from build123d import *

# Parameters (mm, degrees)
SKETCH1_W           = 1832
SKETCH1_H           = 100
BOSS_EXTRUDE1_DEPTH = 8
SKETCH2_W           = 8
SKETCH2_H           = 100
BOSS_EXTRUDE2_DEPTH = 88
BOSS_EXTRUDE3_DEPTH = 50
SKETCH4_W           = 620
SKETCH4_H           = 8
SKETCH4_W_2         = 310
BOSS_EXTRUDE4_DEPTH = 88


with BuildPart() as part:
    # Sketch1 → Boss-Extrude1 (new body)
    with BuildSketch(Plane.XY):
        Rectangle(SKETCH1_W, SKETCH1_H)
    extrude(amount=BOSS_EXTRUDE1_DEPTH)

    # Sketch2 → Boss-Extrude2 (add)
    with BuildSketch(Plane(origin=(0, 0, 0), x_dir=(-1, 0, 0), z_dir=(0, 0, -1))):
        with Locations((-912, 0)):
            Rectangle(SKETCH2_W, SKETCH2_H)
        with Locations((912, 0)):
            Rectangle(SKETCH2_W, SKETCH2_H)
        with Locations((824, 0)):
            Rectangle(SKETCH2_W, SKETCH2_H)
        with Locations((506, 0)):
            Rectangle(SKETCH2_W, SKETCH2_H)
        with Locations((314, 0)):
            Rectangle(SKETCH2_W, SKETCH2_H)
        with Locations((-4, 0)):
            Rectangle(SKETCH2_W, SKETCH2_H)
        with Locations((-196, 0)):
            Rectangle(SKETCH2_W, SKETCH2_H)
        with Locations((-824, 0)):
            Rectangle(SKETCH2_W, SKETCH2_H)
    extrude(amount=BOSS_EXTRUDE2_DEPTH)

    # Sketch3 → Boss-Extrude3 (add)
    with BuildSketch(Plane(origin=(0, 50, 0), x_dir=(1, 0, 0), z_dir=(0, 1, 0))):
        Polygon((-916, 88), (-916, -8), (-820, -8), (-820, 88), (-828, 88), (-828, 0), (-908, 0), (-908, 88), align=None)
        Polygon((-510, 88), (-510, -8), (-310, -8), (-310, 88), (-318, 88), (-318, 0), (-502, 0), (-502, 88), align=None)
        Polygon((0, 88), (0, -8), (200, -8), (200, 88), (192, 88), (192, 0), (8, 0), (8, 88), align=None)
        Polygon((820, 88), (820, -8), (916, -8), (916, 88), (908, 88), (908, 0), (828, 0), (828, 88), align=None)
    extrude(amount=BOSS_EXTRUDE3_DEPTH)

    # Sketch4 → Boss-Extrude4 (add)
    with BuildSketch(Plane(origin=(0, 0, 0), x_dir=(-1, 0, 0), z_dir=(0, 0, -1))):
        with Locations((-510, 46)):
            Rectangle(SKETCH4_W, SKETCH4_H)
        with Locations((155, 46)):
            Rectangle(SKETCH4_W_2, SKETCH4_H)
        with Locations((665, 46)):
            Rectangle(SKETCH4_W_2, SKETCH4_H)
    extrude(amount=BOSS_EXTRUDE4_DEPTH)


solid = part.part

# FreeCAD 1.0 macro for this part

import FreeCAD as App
import Part
import Sketcher
Q = App.Units.Quantity

doc = App.newDocument("Part")
body = doc.addObject("PartDesign::Body", "Body")

sketch1 = body.newObject("Sketcher::SketchObject", "Sketch")
sketch1.AttachmentSupport = (doc.getObject("XY_Plane"), [""])
sketch1.MapMode = "FlatFace"
sketch1.addGeometry([
    Part.LineSegment(App.Vector(-916, 50, 0), App.Vector(-916, -50, 0)),
    Part.LineSegment(App.Vector(-916, -50, 0), App.Vector(916, -50, 0)),
    Part.LineSegment(App.Vector(916, -50, 0), App.Vector(916, 50, 0)),
    Part.LineSegment(App.Vector(916, 50, 0), App.Vector(-916, 50, 0)),
], False)
sketch1.addConstraint([
    Sketcher.Constraint("Coincident", 0, 2, 1, 1),
    Sketcher.Constraint("Coincident", 1, 2, 2, 1),
    Sketcher.Constraint("Coincident", 2, 2, 3, 1),
    Sketcher.Constraint("Coincident", 3, 2, 0, 1),
    Sketcher.Constraint("Vertical", 0),
    Sketcher.Constraint("Horizontal", 1),
    Sketcher.Constraint("Vertical", 2),
    Sketcher.Constraint("Horizontal", 3),
    Sketcher.Constraint("Symmetric", 0, 2, 2, 2, -1, 1),
    Sketcher.Constraint("DistanceX", 1, 1, 1, 2, Q("1832 mm")),
    Sketcher.Constraint("DistanceY", 0, 2, 0, 1, Q("100 mm")),
])
pad1 = body.newObject("PartDesign::Pad", "Pad")
pad1.Profile = sketch1
pad1.Length = 8

sketch2 = body.newObject("Sketcher::SketchObject", "Sketch001")
sketch2.AttachmentSupport = (doc.getObject("XY_Plane"), [""])
sketch2.MapMode = "FlatFace"
sketch2.addGeometry([
    Part.LineSegment(App.Vector(916, 50, 0), App.Vector(916, -50, 0)),
    Part.LineSegment(App.Vector(916, -50, 0), App.Vector(908, -50, 0)),
    Part.LineSegment(App.Vector(908, -50, 0), App.Vector(908, 50, 0)),
    Part.LineSegment(App.Vector(908, 50, 0), App.Vector(916, 50, 0)),
    Part.LineSegment(App.Vector(-908, 50, 0), App.Vector(-908, -50, 0)),
    Part.LineSegment(App.Vector(-908, -50, 0), App.Vector(-916, -50, 0)),
    Part.LineSegment(App.Vector(-916, -50, 0), App.Vector(-916, 50, 0)),
    Part.LineSegment(App.Vector(-916, 50, 0), App.Vector(-908, 50, 0)),
    Part.LineSegment(App.Vector(-820, 50, 0), App.Vector(-820, -50, 0)),
    Part.LineSegment(App.Vector(-820, -50, 0), App.Vector(-828, -50, 0)),
    Part.LineSegment(App.Vector(-828, -50, 0), App.Vector(-828, 50, 0)),
    Part.LineSegment(App.Vector(-828, 50, 0), App.Vector(-820, 50, 0)),
    Part.LineSegment(App.Vector(-502, 50, 0), App.Vector(-502, -50, 0)),
    Part.LineSegment(App.Vector(-502, -50, 0), App.Vector(-510, -50, 0)),
    Part.LineSegment(App.Vector(-510, -50, 0), App.Vector(-510, 50, 0)),
    Part.LineSegment(App.Vector(-510, 50, 0), App.Vector(-502, 50, 0)),
    Part.LineSegment(App.Vector(-310, 50, 0), App.Vector(-310, -50, 0)),
    Part.LineSegment(App.Vector(-310, -50, 0), App.Vector(-318, -50, 0)),
    Part.LineSegment(App.Vector(-318, -50, 0), App.Vector(-318, 50, 0)),
    Part.LineSegment(App.Vector(-318, 50, 0), App.Vector(-310, 50, 0)),
    Part.LineSegment(App.Vector(8, 50, 0), App.Vector(8, -50, 0)),
    Part.LineSegment(App.Vector(8, -50, 0), App.Vector(0, -50, 0)),
    Part.LineSegment(App.Vector(0, -50, 0), App.Vector(0, 50, 0)),
    Part.LineSegment(App.Vector(0, 50, 0), App.Vector(8, 50, 0)),
    Part.LineSegment(App.Vector(200, 50, 0), App.Vector(200, -50, 0)),
    Part.LineSegment(App.Vector(200, -50, 0), App.Vector(192, -50, 0)),
    Part.LineSegment(App.Vector(192, -50, 0), App.Vector(192, 50, 0)),
    Part.LineSegment(App.Vector(192, 50, 0), App.Vector(200, 50, 0)),
    Part.LineSegment(App.Vector(828, 50, 0), App.Vector(828, -50, 0)),
    Part.LineSegment(App.Vector(828, -50, 0), App.Vector(820, -50, 0)),
    Part.LineSegment(App.Vector(820, -50, 0), App.Vector(820, 50, 0)),
    Part.LineSegment(App.Vector(820, 50, 0), App.Vector(828, 50, 0)),
], False)
sketch2.addConstraint([
    Sketcher.Constraint("Coincident", 0, 2, 1, 1),
    Sketcher.Constraint("Coincident", 1, 2, 2, 1),
    Sketcher.Constraint("Coincident", 2, 2, 3, 1),
    Sketcher.Constraint("Coincident", 3, 2, 0, 1),
    Sketcher.Constraint("Coincident", 4, 2, 5, 1),
    Sketcher.Constraint("Coincident", 5, 2, 6, 1),
    Sketcher.Constraint("Coincident", 6, 2, 7, 1),
    Sketcher.Constraint("Coincident", 7, 2, 4, 1),
    Sketcher.Constraint("Coincident", 8, 2, 9, 1),
    Sketcher.Constraint("Coincident", 9, 2, 10, 1),
    Sketcher.Constraint("Coincident", 10, 2, 11, 1),
    Sketcher.Constraint("Coincident", 11, 2, 8, 1),
    Sketcher.Constraint("Coincident", 12, 2, 13, 1),
    Sketcher.Constraint("Coincident", 13, 2, 14, 1),
    Sketcher.Constraint("Coincident", 14, 2, 15, 1),
    Sketcher.Constraint("Coincident", 15, 2, 12, 1),
    Sketcher.Constraint("Coincident", 16, 2, 17, 1),
    Sketcher.Constraint("Coincident", 17, 2, 18, 1),
    Sketcher.Constraint("Coincident", 18, 2, 19, 1),
    Sketcher.Constraint("Coincident", 19, 2, 16, 1),
    Sketcher.Constraint("Coincident", 20, 2, 21, 1),
    Sketcher.Constraint("Coincident", 21, 2, 22, 1),
    Sketcher.Constraint("Coincident", 22, 2, 23, 1),
    Sketcher.Constraint("Coincident", 23, 2, 20, 1),
    Sketcher.Constraint("Coincident", 24, 2, 25, 1),
    Sketcher.Constraint("Coincident", 25, 2, 26, 1),
    Sketcher.Constraint("Coincident", 26, 2, 27, 1),
    Sketcher.Constraint("Coincident", 27, 2, 24, 1),
    Sketcher.Constraint("Coincident", 28, 2, 29, 1),
    Sketcher.Constraint("Coincident", 29, 2, 30, 1),
    Sketcher.Constraint("Coincident", 30, 2, 31, 1),
    Sketcher.Constraint("Coincident", 31, 2, 28, 1),
    Sketcher.Constraint("Vertical", 0),
    Sketcher.Constraint("Horizontal", 1),
    Sketcher.Constraint("Vertical", 2),
    Sketcher.Constraint("Horizontal", 3),
    Sketcher.Constraint("Vertical", 4),
    Sketcher.Constraint("Horizontal", 5),
    Sketcher.Constraint("Vertical", 6),
    Sketcher.Constraint("Horizontal", 7),
    Sketcher.Constraint("Vertical", 8),
    Sketcher.Constraint("Horizontal", 9),
    Sketcher.Constraint("Vertical", 10),
    Sketcher.Constraint("Horizontal", 11),
    Sketcher.Constraint("Vertical", 12),
    Sketcher.Constraint("Horizontal", 13),
    Sketcher.Constraint("Vertical", 14),
    Sketcher.Constraint("Horizontal", 15),
    Sketcher.Constraint("Vertical", 16),
    Sketcher.Constraint("Horizontal", 17),
    Sketcher.Constraint("Vertical", 18),
    Sketcher.Constraint("Horizontal", 19),
    Sketcher.Constraint("Vertical", 20),
    Sketcher.Constraint("Horizontal", 21),
    Sketcher.Constraint("Vertical", 22),
    Sketcher.Constraint("Horizontal", 23),
    Sketcher.Constraint("Vertical", 24),
    Sketcher.Constraint("Horizontal", 25),
    Sketcher.Constraint("Vertical", 26),
    Sketcher.Constraint("Horizontal", 27),
    Sketcher.Constraint("Vertical", 28),
    Sketcher.Constraint("Horizontal", 29),
    Sketcher.Constraint("Vertical", 30),
    Sketcher.Constraint("Horizontal", 31),
    Sketcher.Constraint("Symmetric", 2, 2, 4, 2, -1, 1),
    Sketcher.Constraint("Symmetric", 0, 2, 6, 2, -1, 1),
    Sketcher.Constraint("Symmetric", 21, 2, 22, 2, -1, 1),
    Sketcher.Constraint("Symmetric", 10, 2, 28, 2, -1, 1),
    Sketcher.Constraint("Symmetric", 8, 2, 30, 2, -1, 1),
    Sketcher.Constraint("Horizontal", 1, 2, 4, 2),
    Sketcher.Constraint("Horizontal", 5, 2, 8, 2),
    Sketcher.Constraint("Horizontal", 7, 2, 10, 2),
    Sketcher.Constraint("Horizontal", 9, 2, 12, 2),
    Sketcher.Constraint("Horizontal", 11, 2, 14, 2),
    Sketcher.Constraint("Horizontal", 13, 2, 16, 2),
    Sketcher.Constraint("Horizontal", 15, 2, 18, 2),
    Sketcher.Constraint("Horizontal", 17, 2, 20, 2),
    Sketcher.Constraint("Horizontal", 21, 2, 24, 2),
    Sketcher.Constraint("Horizontal", 23, 2, 26, 2),
    Sketcher.Constraint("Equal", 7, 9),
    Sketcher.Constraint("Equal", 11, 13),
    Sketcher.Constraint("Equal", 15, 17),
    Sketcher.Constraint("Equal", 19, 21),
    Sketcher.Constraint("Equal", 23, 25),
    Sketcher.Constraint("DistanceX", 1, 2, 1, 1, Q("8 mm")),
    Sketcher.Constraint("DistanceY", 0, 2, 0, 1, Q("100 mm")),
    Sketcher.Constraint("DistanceX", -1, 1, 0, 2, Q("916 mm")),
    Sketcher.Constraint("DistanceX", 8, 2, -1, 1, Q("820 mm")),
    Sketcher.Constraint("DistanceX", 12, 2, -1, 1, Q("502 mm")),
    Sketcher.Constraint("DistanceX", 16, 2, -1, 1, Q("310 mm")),
    Sketcher.Constraint("DistanceX", -1, 1, 24, 2, Q("200 mm")),
])
pad2 = body.newObject("PartDesign::Pad", "Pad001")
pad2.Profile = sketch2
pad2.Length = 88
pad2.Reversed = True

sketch3 = body.newObject("Sketcher::SketchObject", "Sketch002")
sketch3.AttachmentSupport = (doc.getObject("XZ_Plane"), [""])
sketch3.MapMode = "FlatFace"
sketch3.AttachmentOffset = App.Placement(App.Vector(0, 0, -50), App.Rotation())
sketch3.addGeometry([
    Part.LineSegment(App.Vector(-916, -88, 0), App.Vector(-916, 8, 0)),
    Part.LineSegment(App.Vector(-916, 8, 0), App.Vector(-820, 8, 0)),
    Part.LineSegment(App.Vector(-820, 8, 0), App.Vector(-820, -88, 0)),
    Part.LineSegment(App.Vector(-820, -88, 0), App.Vector(-828, -88, 0)),
    Part.LineSegment(App.Vector(-828, -88, 0), App.Vector(-828, 0, 0)),
    Part.LineSegment(App.Vector(-828, 0, 0), App.Vector(-908, 0, 0)),
    Part.LineSegment(App.Vector(-908, 0, 0), App.Vector(-908, -88, 0)),
    Part.LineSegment(App.Vector(-908, -88, 0), App.Vector(-916, -88, 0)),
    Part.LineSegment(App.Vector(-510, -88, 0), App.Vector(-510, 8, 0)),
    Part.LineSegment(App.Vector(-510, 8, 0), App.Vector(-310, 8, 0)),
    Part.LineSegment(App.Vector(-310, 8, 0), App.Vector(-310, -88, 0)),
    Part.LineSegment(App.Vector(-310, -88, 0), App.Vector(-318, -88, 0)),
    Part.LineSegment(App.Vector(-318, -88, 0), App.Vector(-318, 0, 0)),
    Part.LineSegment(App.Vector(-318, 0, 0), App.Vector(-502, 0, 0)),
    Part.LineSegment(App.Vector(-502, 0, 0), App.Vector(-502, -88, 0)),
    Part.LineSegment(App.Vector(-502, -88, 0), App.Vector(-510, -88, 0)),
    Part.LineSegment(App.Vector(0, -88, 0), App.Vector(0, 8, 0)),
    Part.LineSegment(App.Vector(0, 8, 0), App.Vector(200, 8, 0)),
    Part.LineSegment(App.Vector(200, 8, 0), App.Vector(200, -88, 0)),
    Part.LineSegment(App.Vector(200, -88, 0), App.Vector(192, -88, 0)),
    Part.LineSegment(App.Vector(192, -88, 0), App.Vector(192, 0, 0)),
    Part.LineSegment(App.Vector(192, 0, 0), App.Vector(8, 0, 0)),
    Part.LineSegment(App.Vector(8, 0, 0), App.Vector(8, -88, 0)),
    Part.LineSegment(App.Vector(8, -88, 0), App.Vector(0, -88, 0)),
    Part.LineSegment(App.Vector(820, -88, 0), App.Vector(820, 8, 0)),
    Part.LineSegment(App.Vector(820, 8, 0), App.Vector(916, 8, 0)),
    Part.LineSegment(App.Vector(916, 8, 0), App.Vector(916, -88, 0)),
    Part.LineSegment(App.Vector(916, -88, 0), App.Vector(908, -88, 0)),
    Part.LineSegment(App.Vector(908, -88, 0), App.Vector(908, 0, 0)),
    Part.LineSegment(App.Vector(908, 0, 0), App.Vector(828, 0, 0)),
    Part.LineSegment(App.Vector(828, 0, 0), App.Vector(828, -88, 0)),
    Part.LineSegment(App.Vector(828, -88, 0), App.Vector(820, -88, 0)),
], False)
sketch3.addConstraint([
    Sketcher.Constraint("Coincident", 0, 2, 1, 1),
    Sketcher.Constraint("Coincident", 1, 2, 2, 1),
    Sketcher.Constraint("Coincident", 2, 2, 3, 1),
    Sketcher.Constraint("Coincident", 3, 2, 4, 1),
    Sketcher.Constraint("Coincident", 4, 2, 5, 1),
    Sketcher.Constraint("Coincident", 5, 2, 6, 1),
    Sketcher.Constraint("Coincident", 6, 2, 7, 1),
    Sketcher.Constraint("Coincident", 7, 2, 0, 1),
    Sketcher.Constraint("Coincident", 8, 2, 9, 1),
    Sketcher.Constraint("Coincident", 9, 2, 10, 1),
    Sketcher.Constraint("Coincident", 10, 2, 11, 1),
    Sketcher.Constraint("Coincident", 11, 2, 12, 1),
    Sketcher.Constraint("Coincident", 12, 2, 13, 1),
    Sketcher.Constraint("Coincident", 13, 2, 14, 1),
    Sketcher.Constraint("Coincident", 14, 2, 15, 1),
    Sketcher.Constraint("Coincident", 15, 2, 8, 1),
    Sketcher.Constraint("Coincident", 16, 2, 17, 1),
    Sketcher.Constraint("Coincident", 17, 2, 18, 1),
    Sketcher.Constraint("Coincident", 18, 2, 19, 1),
    Sketcher.Constraint("Coincident", 19, 2, 20, 1),
    Sketcher.Constraint("Coincident", 20, 2, 21, 1),
    Sketcher.Constraint("Coincident", 21, 2, 22, 1),
    Sketcher.Constraint("Coincident", 22, 2, 23, 1),
    Sketcher.Constraint("Coincident", 23, 2, 16, 1),
    Sketcher.Constraint("Coincident", 24, 2, 25, 1),
    Sketcher.Constraint("Coincident", 25, 2, 26, 1),
    Sketcher.Constraint("Coincident", 26, 2, 27, 1),
    Sketcher.Constraint("Coincident", 27, 2, 28, 1),
    Sketcher.Constraint("Coincident", 28, 2, 29, 1),
    Sketcher.Constraint("Coincident", 29, 2, 30, 1),
    Sketcher.Constraint("Coincident", 30, 2, 31, 1),
    Sketcher.Constraint("Coincident", 31, 2, 24, 1),
    Sketcher.Constraint("Vertical", 0),
    Sketcher.Constraint("Horizontal", 1),
    Sketcher.Constraint("Vertical", 2),
    Sketcher.Constraint("Horizontal", 3),
    Sketcher.Constraint("Vertical", 4),
    Sketcher.Constraint("Horizontal", 5),
    Sketcher.Constraint("Vertical", 6),
    Sketcher.Constraint("Horizontal", 7),
    Sketcher.Constraint("Vertical", 8),
    Sketcher.Constraint("Horizontal", 9),
    Sketcher.Constraint("Vertical", 10),
    Sketcher.Constraint("Horizontal", 11),
    Sketcher.Constraint("Vertical", 12),
    Sketcher.Constraint("Horizontal", 13),
    Sketcher.Constraint("Vertical", 14),
    Sketcher.Constraint("Horizontal", 15),
    Sketcher.Constraint("Vertical", 16),
    Sketcher.Constraint("Horizontal", 17),
    Sketcher.Constraint("Vertical", 18),
    Sketcher.Constraint("Horizontal", 19),
    Sketcher.Constraint("Vertical", 20),
    Sketcher.Constraint("Horizontal", 21),
    Sketcher.Constraint("Vertical", 22),
    Sketcher.Constraint("Horizontal", 23),
    Sketcher.Constraint("Vertical", 24),
    Sketcher.Constraint("Horizontal", 25),
    Sketcher.Constraint("Vertical", 26),
    Sketcher.Constraint("Horizontal", 27),
    Sketcher.Constraint("Vertical", 28),
    Sketcher.Constraint("Horizontal", 29),
    Sketcher.Constraint("Vertical", 30),
    Sketcher.Constraint("Horizontal", 31),
    Sketcher.Constraint("Symmetric", 5, 2, 28, 2, -1, 1),
    Sketcher.Constraint("Symmetric", 1, 2, 24, 2, -2),
    Sketcher.Constraint("Symmetric", 7, 2, 26, 2, -2),
    Sketcher.Constraint("Symmetric", 4, 2, 29, 2, -2),
    Sketcher.Constraint("PointOnObject", 12, 2, -1),
    Sketcher.Constraint("PointOnObject", 16, 2, -2),
    Sketcher.Constraint("PointOnObject", 20, 2, -1),
    Sketcher.Constraint("Horizontal", 3, 2, 6, 2),
    Sketcher.Constraint("Horizontal", 1, 2, 8, 2),
    Sketcher.Constraint("Horizontal", 7, 2, 10, 2),
    Sketcher.Constraint("Horizontal", 11, 2, 14, 2),
    Sketcher.Constraint("Horizontal", 9, 2, 16, 2),
    Sketcher.Constraint("Horizontal", 15, 2, 18, 2),
    Sketcher.Constraint("Horizontal", 19, 2, 22, 2),
    Sketcher.Constraint("Horizontal", 27, 2, 30, 2),
    Sketcher.Constraint("Equal", 3, 7),
    Sketcher.Constraint("Equal", 7, 11),
    Sketcher.Constraint("Equal", 11, 15),
    Sketcher.Constraint("Equal", 9, 17),
    Sketcher.Constraint("Equal", 15, 19),
    Sketcher.Constraint("Equal", 13, 21),
    Sketcher.Constraint("Equal", 25, 0),
    Sketcher.Constraint("DistanceX", 1, 1, 1, 2, Q("96 mm")),
    Sketcher.Constraint("DistanceX", 3, 2, 3, 1, Q("8 mm")),
    Sketcher.Constraint("DistanceX", 9, 1, 9, 2, Q("200 mm")),
    Sketcher.Constraint("DistanceY", 4, 1, 4, 2, Q("88 mm")),
    Sketcher.Constraint("DistanceX", 0, 2, -1, 1, Q("916 mm")),
    Sketcher.Constraint("DistanceX", 8, 2, -1, 1, Q("510 mm")),
])
pad3 = body.newObject("PartDesign::Pad", "Pad002")
pad3.Profile = sketch3
pad3.Length = 50
pad3.Reversed = True

sketch4 = body.newObject("Sketcher::SketchObject", "Sketch003")
sketch4.AttachmentSupport = (doc.getObject("XY_Plane"), [""])
sketch4.MapMode = "FlatFace"
sketch4.addGeometry([
    Part.LineSegment(App.Vector(820, 50, 0), App.Vector(820, 42, 0)),
    Part.LineSegment(App.Vector(820, 42, 0), App.Vector(200, 42, 0)),
    Part.LineSegment(App.Vector(200, 42, 0), App.Vector(200, 50, 0)),
    Part.LineSegment(App.Vector(200, 50, 0), App.Vector(820, 50, 0)),
    Part.LineSegment(App.Vector(0, 50, 0), App.Vector(0, 42, 0)),
    Part.LineSegment(App.Vector(0, 42, 0), App.Vector(-310, 42, 0)),
    Part.LineSegment(App.Vector(-310, 42, 0), App.Vector(-310, 50, 0)),
    Part.LineSegment(App.Vector(-310, 50, 0), App.Vector(0, 50, 0)),
    Part.LineSegment(App.Vector(-510, 50, 0), App.Vector(-510, 42, 0)),
    Part.LineSegment(App.Vector(-510, 42, 0), App.Vector(-820, 42, 0)),
    Part.LineSegment(App.Vector(-820, 42, 0), App.Vector(-820, 50, 0)),
    Part.LineSegment(App.Vector(-820, 50, 0), App.Vector(-510, 50, 0)),
], False)
sketch4.addConstraint([
    Sketcher.Constraint("Coincident", 0, 2, 1, 1),
    Sketcher.Constraint("Coincident", 1, 2, 2, 1),
    Sketcher.Constraint("Coincident", 2, 2, 3, 1),
    Sketcher.Constraint("Coincident", 3, 2, 0, 1),
    Sketcher.Constraint("Coincident", 4, 2, 5, 1),
    Sketcher.Constraint("Coincident", 5, 2, 6, 1),
    Sketcher.Constraint("Coincident", 6, 2, 7, 1),
    Sketcher.Constraint("Coincident", 7, 2, 4, 1),
    Sketcher.Constraint("Coincident", 8, 2, 9, 1),
    Sketcher.Constraint("Coincident", 9, 2, 10, 1),
    Sketcher.Constraint("Coincident", 10, 2, 11, 1),
    Sketcher.Constraint("Coincident", 11, 2, 8, 1),
    Sketcher.Constraint("Vertical", 0),
    Sketcher.Constraint("Horizontal", 1),
    Sketcher.Constraint("Vertical", 2),
    Sketcher.Constraint("Horizontal", 3),
    Sketcher.Constraint("Vertical", 4),
    Sketcher.Constraint("Horizontal", 5),
    Sketcher.Constraint("Vertical", 6),
    Sketcher.Constraint("Horizontal", 7),
    Sketcher.Constraint("Vertical", 8),
    Sketcher.Constraint("Horizontal", 9),
    Sketcher.Constraint("Vertical", 10),
    Sketcher.Constraint("Horizontal", 11),
    Sketcher.Constraint("Symmetric", 0, 2, 9, 2, -2),
    Sketcher.Constraint("PointOnObject", 4, 2, -2),
    Sketcher.Constraint("Horizontal", 1, 2, 4, 2),
    Sketcher.Constraint("Horizontal", 3, 2, 6, 2),
    Sketcher.Constraint("Horizontal", 7, 2, 10, 2),
    Sketcher.Constraint("Equal", 7, 9),
    Sketcher.Constraint("DistanceX", 1, 2, 1, 1, Q("620 mm")),
    Sketcher.Constraint("DistanceX", 5, 2, 5, 1, Q("310 mm")),
    Sketcher.Constraint("DistanceY", 0, 2, 0, 1, Q("8 mm")),
    Sketcher.Constraint("DistanceX", -1, 1, 0, 2, Q("820 mm")),
    Sketcher.Constraint("DistanceY", -1, 1, 0, 2, Q("42 mm")),
])
pad4 = body.newObject("PartDesign::Pad", "Pad003")
pad4.Profile = sketch4
pad4.Length = 88
pad4.Reversed = True

doc.recompute()
